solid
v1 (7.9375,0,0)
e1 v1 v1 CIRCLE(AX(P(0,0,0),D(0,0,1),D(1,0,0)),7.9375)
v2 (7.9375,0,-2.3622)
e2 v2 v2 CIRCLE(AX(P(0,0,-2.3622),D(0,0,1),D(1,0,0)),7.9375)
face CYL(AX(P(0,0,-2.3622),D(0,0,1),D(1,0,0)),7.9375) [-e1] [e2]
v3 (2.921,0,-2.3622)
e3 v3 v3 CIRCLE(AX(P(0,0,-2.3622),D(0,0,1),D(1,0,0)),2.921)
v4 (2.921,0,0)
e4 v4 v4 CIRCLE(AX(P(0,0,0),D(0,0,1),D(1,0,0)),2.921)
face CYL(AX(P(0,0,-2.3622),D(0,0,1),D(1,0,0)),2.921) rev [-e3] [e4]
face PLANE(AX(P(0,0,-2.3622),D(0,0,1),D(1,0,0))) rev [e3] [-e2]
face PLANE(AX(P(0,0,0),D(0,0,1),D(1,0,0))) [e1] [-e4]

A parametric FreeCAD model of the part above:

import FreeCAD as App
import Part
import Sketcher
from FreeCAD import Vector
Q = App.Units.Quantity

doc = App.newDocument("Part")
body = doc.addObject("PartDesign::Body", "Body")

sketch1 = body.newObject("Sketcher::SketchObject", "Sketch")
sketch1.AttachmentSupport = (doc.getObject("XY_Plane"), [""])
sketch1.MapMode = "FlatFace"
sketch1.addGeometry(Part.Circle(Vector(0, 0, 0), Vector(0, 0, 1), 7.9375), False)
sketch1.addGeometry(Part.Circle(Vector(0, 0, 0), Vector(0, 0, 1), 2.921), False)
sketch1.addConstraint(Sketcher.Constraint("Coincident", 0, 3, -1, 1))
sketch1.addConstraint(Sketcher.Constraint("Coincident", 1, 3, -1, 1))
sketch1.addConstraint(Sketcher.Constraint("Diameter", 1, Q("0.23 in")))
sketch1.addConstraint(Sketcher.Constraint("Diameter", 0, Q("0.625 in")))
pad1 = body.newObject("PartDesign::Pad", "Pad")
pad1.Profile = sketch1
pad1.Length = Q("0.093 in")
pad1.Reversed = True

doc.recompute()
